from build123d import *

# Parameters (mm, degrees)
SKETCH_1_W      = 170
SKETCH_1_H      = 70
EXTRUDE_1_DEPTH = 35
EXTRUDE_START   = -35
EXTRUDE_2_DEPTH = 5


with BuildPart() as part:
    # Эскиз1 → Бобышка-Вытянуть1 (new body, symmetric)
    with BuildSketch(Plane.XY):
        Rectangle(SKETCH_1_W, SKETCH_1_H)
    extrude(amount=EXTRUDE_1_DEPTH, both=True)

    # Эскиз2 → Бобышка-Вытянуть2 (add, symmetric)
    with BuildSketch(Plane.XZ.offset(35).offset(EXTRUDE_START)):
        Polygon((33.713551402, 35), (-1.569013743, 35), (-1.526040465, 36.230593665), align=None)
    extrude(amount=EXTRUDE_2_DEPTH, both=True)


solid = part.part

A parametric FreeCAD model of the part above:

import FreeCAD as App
import Part
import Sketcher

V = App.Vector
Q = App.Units.Quantity

doc = App.newDocument("Part")
body = doc.addObject("PartDesign::Body", "Body")

# Sketch on XY plane
sketch1 = body.newObject("Sketcher::SketchObject", "Sketch")
sketch1.AttachmentSupport = (doc.getObject("XY_Plane"), [""])
sketch1.MapMode = "FlatFace"
sketch1.addGeometry(Part.LineSegment(V(-85, 35, 0), V(-85, -35, 0)), False)
sketch1.addGeometry(Part.LineSegment(V(-85, -35, 0), V(85, -35, 0)), False)
sketch1.addGeometry(Part.LineSegment(V(85, -35, 0), V(85, 35, 0)), False)
sketch1.addGeometry(Part.LineSegment(V(85, 35, 0), V(-85, 35, 0)), False)
sketch1.addConstraint(Sketcher.Constraint("Coincident", 0, 2, 1, 1))
sketch1.addConstraint(Sketcher.Constraint("Coincident", 1, 2, 2, 1))
sketch1.addConstraint(Sketcher.Constraint("Coincident", 2, 2, 3, 1))
sketch1.addConstraint(Sketcher.Constraint("Coincident", 3, 2, 0, 1))
sketch1.addConstraint(Sketcher.Constraint("Vertical", 0))
sketch1.addConstraint(Sketcher.Constraint("Horizontal", 1))
sketch1.addConstraint(Sketcher.Constraint("Vertical", 2))
sketch1.addConstraint(Sketcher.Constraint("Horizontal", 3))
sketch1.addConstraint(Sketcher.Constraint("Symmetric", 0, 2, 2, 2, -1, 1))
sketch1.addConstraint(Sketcher.Constraint("DistanceX", 1, 1, 1, 2, Q("170 mm")))
sketch1.addConstraint(Sketcher.Constraint("DistanceY", 0, 2, 0, 1, Q("70 mm")))
pad1 = body.newObject("PartDesign::Pad", "Pad")
pad1.Profile = sketch1
pad1.Length = 70
pad1.Midplane = True

# Sketch on XZ plane
sketch2 = body.newObject("Sketcher::SketchObject", "Sketch001")
sketch2.AttachmentSupport = (doc.getObject("XZ_Plane"), [""])
sketch2.MapMode = "FlatFace"
sketch2.addGeometry(Part.LineSegment(V(-1.6, 35, 0), V(33.7, 35, 0)), False)
sketch2.addGeometry(Part.LineSegment(V(33.7, 35, 0), V(-1.5, 36.2, 0)), False)
sketch2.addGeometry(Part.LineSegment(V(-1.5, 36.2, 0), V(-1.6, 35, 0)), False)
sketch2.addConstraint(Sketcher.Constraint("Coincident", 0, 2, 1, 1))
sketch2.addConstraint(Sketcher.Constraint("Coincident", 1, 2, 2, 1))
sketch2.addConstraint(Sketcher.Constraint("Coincident", 2, 2, 0, 1))
sketch2.addConstraint(Sketcher.Constraint("Horizontal", 0))
sketch2.addConstraint(Sketcher.Constraint("Perpendicular", 1, 2))
sketch2.addConstraint(Sketcher.Constraint("Angle", 1, Q("178 deg")))
sketch2.addConstraint(Sketcher.Constraint("DistanceY", -1, 1, 0, 2, Q("35 mm")))
sketch2.addConstraint(Sketcher.Constraint("Distance", 1, Q("35.261072 mm")))
sketch2.addConstraint(Sketcher.Constraint("DistanceX", -1, 1, 0, 2, Q("33.713551 mm")))
pad2 = body.newObject("PartDesign::Pad", "Pad001")
pad2.Profile = sketch2
pad2.Length = 10
pad2.Midplane = True

doc.recompute()
